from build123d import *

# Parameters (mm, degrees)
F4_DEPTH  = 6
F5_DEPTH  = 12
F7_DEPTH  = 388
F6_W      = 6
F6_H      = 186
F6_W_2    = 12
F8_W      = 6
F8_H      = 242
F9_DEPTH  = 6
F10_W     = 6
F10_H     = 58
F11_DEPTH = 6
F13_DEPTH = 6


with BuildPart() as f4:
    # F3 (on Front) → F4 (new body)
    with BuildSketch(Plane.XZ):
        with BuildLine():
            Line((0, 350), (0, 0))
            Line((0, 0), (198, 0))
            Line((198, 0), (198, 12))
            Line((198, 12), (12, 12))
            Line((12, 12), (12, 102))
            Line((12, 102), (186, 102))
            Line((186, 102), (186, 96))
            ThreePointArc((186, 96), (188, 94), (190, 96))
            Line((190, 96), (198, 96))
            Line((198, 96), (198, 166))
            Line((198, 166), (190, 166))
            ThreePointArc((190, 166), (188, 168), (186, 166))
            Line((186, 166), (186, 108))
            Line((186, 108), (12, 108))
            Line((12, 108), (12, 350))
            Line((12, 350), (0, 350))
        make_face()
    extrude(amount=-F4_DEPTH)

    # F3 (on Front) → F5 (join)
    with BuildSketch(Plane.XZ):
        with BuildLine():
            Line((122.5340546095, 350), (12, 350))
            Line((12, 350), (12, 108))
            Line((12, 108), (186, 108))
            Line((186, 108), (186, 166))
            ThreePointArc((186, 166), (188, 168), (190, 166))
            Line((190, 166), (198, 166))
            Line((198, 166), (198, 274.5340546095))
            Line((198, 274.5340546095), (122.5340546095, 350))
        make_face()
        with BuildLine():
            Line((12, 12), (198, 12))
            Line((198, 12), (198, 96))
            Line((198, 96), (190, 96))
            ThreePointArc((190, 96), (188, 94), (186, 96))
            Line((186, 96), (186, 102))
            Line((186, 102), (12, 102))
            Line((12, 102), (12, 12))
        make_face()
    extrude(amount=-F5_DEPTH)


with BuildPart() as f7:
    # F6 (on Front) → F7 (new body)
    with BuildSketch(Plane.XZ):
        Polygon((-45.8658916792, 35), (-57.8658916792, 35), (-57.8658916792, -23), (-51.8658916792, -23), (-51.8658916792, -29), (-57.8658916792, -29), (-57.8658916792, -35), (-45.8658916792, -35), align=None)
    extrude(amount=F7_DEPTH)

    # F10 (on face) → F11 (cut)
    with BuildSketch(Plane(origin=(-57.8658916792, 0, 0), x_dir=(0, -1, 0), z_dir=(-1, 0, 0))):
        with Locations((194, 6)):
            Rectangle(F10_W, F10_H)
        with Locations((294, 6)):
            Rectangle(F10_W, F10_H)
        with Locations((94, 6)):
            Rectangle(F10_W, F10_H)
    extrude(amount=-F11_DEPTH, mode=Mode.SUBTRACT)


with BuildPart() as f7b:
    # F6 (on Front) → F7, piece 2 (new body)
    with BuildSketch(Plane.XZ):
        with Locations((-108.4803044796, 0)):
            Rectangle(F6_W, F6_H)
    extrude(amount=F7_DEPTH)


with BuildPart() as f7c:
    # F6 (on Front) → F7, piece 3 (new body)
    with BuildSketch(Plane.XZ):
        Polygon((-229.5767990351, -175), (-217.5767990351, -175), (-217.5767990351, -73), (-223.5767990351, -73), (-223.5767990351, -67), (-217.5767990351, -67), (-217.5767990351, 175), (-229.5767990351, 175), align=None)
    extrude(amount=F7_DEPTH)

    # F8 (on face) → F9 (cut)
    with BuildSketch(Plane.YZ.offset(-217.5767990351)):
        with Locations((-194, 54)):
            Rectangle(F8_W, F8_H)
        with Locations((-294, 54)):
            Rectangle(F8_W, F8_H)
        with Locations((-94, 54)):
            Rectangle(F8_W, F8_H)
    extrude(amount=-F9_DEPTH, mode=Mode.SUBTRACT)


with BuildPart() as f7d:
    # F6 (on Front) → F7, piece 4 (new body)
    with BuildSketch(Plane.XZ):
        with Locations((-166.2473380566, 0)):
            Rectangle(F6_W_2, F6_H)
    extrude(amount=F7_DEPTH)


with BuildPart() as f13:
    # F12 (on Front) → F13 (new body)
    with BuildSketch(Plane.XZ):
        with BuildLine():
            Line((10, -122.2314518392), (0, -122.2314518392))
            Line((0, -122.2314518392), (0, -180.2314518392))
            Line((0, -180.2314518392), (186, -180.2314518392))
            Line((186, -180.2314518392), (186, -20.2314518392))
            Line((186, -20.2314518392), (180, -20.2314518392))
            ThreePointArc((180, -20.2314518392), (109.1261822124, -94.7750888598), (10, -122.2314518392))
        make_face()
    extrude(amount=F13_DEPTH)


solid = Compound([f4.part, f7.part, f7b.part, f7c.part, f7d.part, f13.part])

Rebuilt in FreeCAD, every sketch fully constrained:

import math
import FreeCAD as App
import Part
import Sketcher

V = App.Vector
Q = App.Units.Quantity

doc = App.newDocument("Part")
body = doc.addObject("PartDesign::Body", "Body")

# Sketch on XZ plane
sketch1 = body.newObject("Sketcher::SketchObject", "Sketch")
sketch1.AttachmentSupport = (doc.getObject("XZ_Plane"), [""])
sketch1.MapMode = "FlatFace"
sketch1.addGeometry([
    Part.LineSegment(V(0, 350, 0), V(0, 0, 0)),  # 0
    Part.LineSegment(V(0, 0, 0), V(198, 0, 0)),  # 1
    Part.LineSegment(V(198, 0, 0), V(198, 12, 0)),  # 2
    Part.LineSegment(V(198, 12, 0), V(12, 12, 0)),  # 3
    Part.LineSegment(V(12, 12, 0), V(12, 102, 0)),  # 4
    Part.LineSegment(V(12, 102, 0), V(186, 102, 0)),  # 5
    Part.LineSegment(V(186, 102, 0), V(186, 96, 0)),  # 6
    Part.ArcOfCircle(Part.Circle(V(188, 96, 0), V(0, 0, 1), 2), math.radians(180), math.radians(360)),  # 7
    Part.LineSegment(V(190, 96, 0), V(198, 96, 0)),  # 8
    Part.LineSegment(V(198, 96, 0), V(198, 166, 0)),  # 9
    Part.LineSegment(V(198, 166, 0), V(190, 166, 0)),  # 10
    Part.ArcOfCircle(Part.Circle(V(188, 166, 0), V(0, 0, 1), 2), math.radians(0), math.radians(180)),  # 11
    Part.LineSegment(V(186, 166, 0), V(186, 108, 0)),  # 12
    Part.LineSegment(V(186, 108, 0), V(12, 108, 0)),  # 13
    Part.LineSegment(V(12, 108, 0), V(12, 350, 0)),  # 14
    Part.LineSegment(V(12, 350, 0), V(0, 350, 0)),  # 15
], False)
sketch1.addConstraint([
    Sketcher.Constraint("Coincident", 0, 2, 1, 1),
    Sketcher.Constraint("Coincident", 1, 2, 2, 1),
    Sketcher.Constraint("Coincident", 2, 2, 3, 1),
    Sketcher.Constraint("Coincident", 3, 2, 4, 1),
    Sketcher.Constraint("Coincident", 4, 2, 5, 1),
    Sketcher.Constraint("Coincident", 5, 2, 6, 1),
    Sketcher.Constraint("Tangent", 6, 2, 7, 1),
    Sketcher.Constraint("Coincident", 7, 2, 8, 1),
    Sketcher.Constraint("Coincident", 8, 2, 9, 1),
    Sketcher.Constraint("Coincident", 9, 2, 10, 1),
    Sketcher.Constraint("Coincident", 10, 2, 11, 1),
    Sketcher.Constraint("Tangent", 11, 2, 12, 1),
    Sketcher.Constraint("Coincident", 12, 2, 13, 1),
    Sketcher.Constraint("Coincident", 13, 2, 14, 1),
    Sketcher.Constraint("Coincident", 14, 2, 15, 1),
    Sketcher.Constraint("Coincident", 15, 2, 0, 1),
    Sketcher.Constraint("Vertical", 0),
    Sketcher.Constraint("Horizontal", 1),
    Sketcher.Constraint("Vertical", 2),
    Sketcher.Constraint("Horizontal", 3),
    Sketcher.Constraint("Vertical", 4),
    Sketcher.Constraint("Horizontal", 5),
    Sketcher.Constraint("Vertical", 6),
    Sketcher.Constraint("Horizontal", 8),
    Sketcher.Constraint("Vertical", 9),
    Sketcher.Constraint("Horizontal", 10),
    Sketcher.Constraint("Vertical", 12),
    Sketcher.Constraint("Horizontal", 13),
    Sketcher.Constraint("Vertical", 14),
    Sketcher.Constraint("Horizontal", 15),
    Sketcher.Constraint("Coincident", 0, 2, -1, 1),
    Sketcher.Constraint("Equal", 7, 11),
    Sketcher.Constraint("Horizontal", 6, 2, 7, 2),
    Sketcher.Constraint("Horizontal", 11, 3, 9, 2),
    Sketcher.Constraint("Vertical", 7, 3, 11, 3),
    Sketcher.Constraint("Vertical", 2, 2, 8, 2),
    Sketcher.Constraint("Vertical", 4, 2, 13, 2),
    Sketcher.Constraint("Equal", 15, 2),
    Sketcher.Constraint("Radius", 7, Q("2 mm")),
    Sketcher.Constraint("DistanceX", 1, 1, 1, 2, Q("198 mm")),
    Sketcher.Constraint("DistanceX", 3, 2, 3, 1, Q("186 mm")),
    Sketcher.Constraint("DistanceX", 5, 1, 5, 2, Q("174 mm")),
    Sketcher.Constraint("DistanceY", 0, 2, 0, 1, Q("350 mm")),
    Sketcher.Constraint("DistanceY", 4, 1, 4, 2, Q("90 mm")),
    Sketcher.Constraint("DistanceY", 6, 2, 6, 1, Q("6 mm")),
    Sketcher.Constraint("DistanceY", 9, 1, 9, 2, Q("70 mm")),
    Sketcher.Constraint("DistanceY", 12, 2, 12, 1, Q("58 mm")),
])
pad1 = body.newObject("PartDesign::Pad", "Pad")
pad1.Profile = sketch1
pad1.Length = 6
pad1.Reversed = True

# Sketch on XZ plane
sketch2 = body.newObject("Sketcher::SketchObject", "Sketch001")
sketch2.AttachmentSupport = (doc.getObject("XZ_Plane"), [""])
sketch2.MapMode = "FlatFace"
sketch2.addGeometry([
    Part.LineSegment(V(122.5, 350, 0), V(12, 350, 0)),  # 0
    Part.LineSegment(V(12, 350, 0), V(12, 108, 0)),  # 1
    Part.LineSegment(V(12, 108, 0), V(186, 108, 0)),  # 2
    Part.LineSegment(V(186, 108, 0), V(186, 166, 0)),  # 3
    Part.ArcOfCircle(Part.Circle(V(188, 166, 0), V(0, 0, 1), 2), math.radians(0), math.radians(180)),  # 4
    Part.LineSegment(V(190, 166, 0), V(198, 166, 0)),  # 5
    Part.LineSegment(V(198, 166, 0), V(198, 274.5, 0)),  # 6
    Part.LineSegment(V(198, 274.5, 0), V(122.5, 350, 0)),  # 7
    Part.LineSegment(V(12, 12, 0), V(198, 12, 0)),  # 8
    Part.LineSegment(V(198, 12, 0), V(198, 96, 0)),  # 9
    Part.LineSegment(V(198, 96, 0), V(190, 96, 0)),  # 10
    Part.ArcOfCircle(Part.Circle(V(188, 96, 0), V(0, 0, 1), 2), math.radians(180), math.radians(360)),  # 11
    Part.LineSegment(V(186, 96, 0), V(186, 102, 0)),  # 12
    Part.LineSegment(V(186, 102, 0), V(12, 102, 0)),  # 13
    Part.LineSegment(V(12, 102, 0), V(12, 12, 0)),  # 14
], False)
sketch2.addConstraint([
    Sketcher.Constraint("Coincident", 0, 2, 1, 1),
    Sketcher.Constraint("Coincident", 1, 2, 2, 1),
    Sketcher.Constraint("Coincident", 2, 2, 3, 1),
    Sketcher.Constraint("Tangent", 3, 2, 4, 2),
    Sketcher.Constraint("Coincident", 4, 1, 5, 1),
    Sketcher.Constraint("Coincident", 5, 2, 6, 1),
    Sketcher.Constraint("Coincident", 6, 2, 7, 1),
    Sketcher.Constraint("Coincident", 7, 2, 0, 1),
    Sketcher.Constraint("Coincident", 8, 2, 9, 1),
    Sketcher.Constraint("Coincident", 9, 2, 10, 1),
    Sketcher.Constraint("Coincident", 10, 2, 11, 2),
    Sketcher.Constraint("Tangent", 11, 1, 12, 1),
    Sketcher.Constraint("Coincident", 12, 2, 13, 1),
    Sketcher.Constraint("Coincident", 13, 2, 14, 1),
    Sketcher.Constraint("Coincident", 14, 2, 8, 1),
    Sketcher.Constraint("Horizontal", 0),
    Sketcher.Constraint("Vertical", 1),
    Sketcher.Constraint("Horizontal", 2),
    Sketcher.Constraint("Vertical", 3),
    Sketcher.Constraint("Horizontal", 5),
    Sketcher.Constraint("Vertical", 6),
    Sketcher.Constraint("Horizontal", 8),
    Sketcher.Constraint("Vertical", 9),
    Sketcher.Constraint("Horizontal", 10),
    Sketcher.Constraint("Vertical", 12),
    Sketcher.Constraint("Horizontal", 13),
    Sketcher.Constraint("Vertical", 14),
    Sketcher.Constraint("Equal", 4, 11),
    Sketcher.Constraint("Horizontal", 3, 2, 4, 1),
    Sketcher.Constraint("Horizontal", 11, 3, 9, 2),
    Sketcher.Constraint("Vertical", 4, 3, 11, 3),
    Sketcher.Constraint("Vertical", 6, 2, 8, 2),
    Sketcher.Constraint("Vertical", 1, 2, 13, 2),
    Sketcher.Constraint("Radius", 4, Q("2 mm")),
    Sketcher.Constraint("DistanceX", 2, 1, 2, 2, Q("174 mm")),
    Sketcher.Constraint("DistanceX", 5, 1, 5, 2, Q("8 mm")),
    Sketcher.Constraint("DistanceY", 1, 2, 1, 1, Q("242 mm")),
    Sketcher.Constraint("DistanceY", 3, 1, 3, 2, Q("58 mm")),
    Sketcher.Constraint("DistanceY", 9, 1, 9, 2, Q("84 mm")),
    Sketcher.Constraint("DistanceY", 12, 1, 12, 2, Q("6 mm")),
    Sketcher.Constraint("Angle", 7, Q("135 deg")),
    Sketcher.Constraint("DistanceX", -1, 1, 4, 3, Q("188 mm")),
    Sketcher.Constraint("DistanceY", -1, 1, 4, 3, Q("166 mm")),
    Sketcher.Constraint("DistanceY", -1, 1, 11, 3, Q("96 mm")),
    Sketcher.Constraint("DistanceX", 0, 2, 0, 1, Q("110.534055 mm")),
])
pad2 = body.newObject("PartDesign::Pad", "Pad001")
pad2.Profile = sketch2
pad2.Length = 12
pad2.Reversed = True
body2 = doc.addObject("PartDesign::Body", "Body001")

# Sketch on XZ plane
sketch3 = body2.newObject("Sketcher::SketchObject", "Sketch002")
sketch3.AttachmentSupport = (doc.getObject("XZ_Plane001"), [""])
sketch3.MapMode = "FlatFace"
sketch3.addGeometry([
    Part.LineSegment(V(-46, 35, 0), V(-58, 35, 0)),  # 0
    Part.LineSegment(V(-58, 35, 0), V(-58, -23, 0)),  # 1
    Part.LineSegment(V(-58, -23, 0), V(-52, -23, 0)),  # 2
    Part.LineSegment(V(-52, -23, 0), V(-52, -29, 0)),  # 3
    Part.LineSegment(V(-52, -29, 0), V(-58, -29, 0)),  # 4
    Part.LineSegment(V(-58, -29, 0), V(-58, -35, 0)),  # 5
    Part.LineSegment(V(-58, -35, 0), V(-46, -35, 0)),  # 6
    Part.LineSegment(V(-46, -35, 0), V(-46, 35, 0)),  # 7
], False)
sketch3.addConstraint([
    Sketcher.Constraint("Coincident", 0, 2, 1, 1),
    Sketcher.Constraint("Coincident", 1, 2, 2, 1),
    Sketcher.Constraint("Coincident", 2, 2, 3, 1),
    Sketcher.Constraint("Coincident", 3, 2, 4, 1),
    Sketcher.Constraint("Coincident", 4, 2, 5, 1),
    Sketcher.Constraint("Coincident", 5, 2, 6, 1),
    Sketcher.Constraint("Coincident", 6, 2, 7, 1),
    Sketcher.Constraint("Coincident", 7, 2, 0, 1),
    Sketcher.Constraint("Horizontal", 0),
    Sketcher.Constraint("Vertical", 1),
    Sketcher.Constraint("Horizontal", 2),
    Sketcher.Constraint("Vertical", 3),
    Sketcher.Constraint("Horizontal", 4),
    Sketcher.Constraint("Vertical", 5),
    Sketcher.Constraint("Horizontal", 6),
    Sketcher.Constraint("Vertical", 7),
    Sketcher.Constraint("Symmetric", 0, 2, 5, 2, -1),
    Sketcher.Constraint("Equal", 4, 3),
    Sketcher.Constraint("Equal", 3, 5),
    Sketcher.Constraint("DistanceX", 0, 2, 0, 1, Q("12 mm")),
    Sketcher.Constraint("DistanceX", 2, 1, 2, 2, Q("6 mm")),
    Sketcher.Constraint("DistanceY", 1, 2, 1, 1, Q("58 mm")),
    Sketcher.Constraint("DistanceX", 0, 2, -1, 1, Q("57.865892 mm")),
])
pad3 = body2.newObject("PartDesign::Pad", "Pad002")
pad3.Profile = sketch3
pad3.Length = 388

# Sketch on YZ plane
sketch4 = body2.newObject("Sketcher::SketchObject", "Sketch003")
sketch4.AttachmentSupport = (doc.getObject("YZ_Plane001"), [""])
sketch4.MapMode = "FlatFace"
sketch4.AttachmentOffset = App.Placement(V(0, 0, -57.865892), App.Rotation())
sketch4.addGeometry([
    Part.LineSegment(V(-191, 35, 0), V(-191, -23, 0)),  # 0
    Part.LineSegment(V(-191, -23, 0), V(-197, -23, 0)),  # 1
    Part.LineSegment(V(-197, -23, 0), V(-197, 35, 0)),  # 2
    Part.LineSegment(V(-197, 35, 0), V(-191, 35, 0)),  # 3
    Part.LineSegment(V(-291, 35, 0), V(-291, -23, 0)),  # 4
    Part.LineSegment(V(-291, -23, 0), V(-297, -23, 0)),  # 5
    Part.LineSegment(V(-297, -23, 0), V(-297, 35, 0)),  # 6
    Part.LineSegment(V(-297, 35, 0), V(-291, 35, 0)),  # 7
    Part.LineSegment(V(-91, 35, 0), V(-91, -23, 0)),  # 8
    Part.LineSegment(V(-91, -23, 0), V(-97, -23, 0)),  # 9
    Part.LineSegment(V(-97, -23, 0), V(-97, 35, 0)),  # 10
    Part.LineSegment(V(-97, 35, 0), V(-91, 35, 0)),  # 11
], False)
sketch4.addConstraint([
    Sketcher.Constraint("Coincident", 0, 2, 1, 1),
    Sketcher.Constraint("Coincident", 1, 2, 2, 1),
    Sketcher.Constraint("Coincident", 2, 2, 3, 1),
    Sketcher.Constraint("Coincident", 3, 2, 0, 1),
    Sketcher.Constraint("Coincident", 4, 2, 5, 1),
    Sketcher.Constraint("Coincident", 5, 2, 6, 1),
    Sketcher.Constraint("Coincident", 6, 2, 7, 1),
    Sketcher.Constraint("Coincident", 7, 2, 4, 1),
    Sketcher.Constraint("Coincident", 8, 2, 9, 1),
    Sketcher.Constraint("Coincident", 9, 2, 10, 1),
    Sketcher.Constraint("Coincident", 10, 2, 11, 1),
    Sketcher.Constraint("Coincident", 11, 2, 8, 1),
    Sketcher.Constraint("Vertical", 0),
    Sketcher.Constraint("Horizontal", 1),
    Sketcher.Constraint("Vertical", 2),
    Sketcher.Constraint("Horizontal", 3),
    Sketcher.Constraint("Vertical", 4),
    Sketcher.Constraint("Horizontal", 5),
    Sketcher.Constraint("Vertical", 6),
    Sketcher.Constraint("Horizontal", 7),
    Sketcher.Constraint("Vertical", 8),
    Sketcher.Constraint("Horizontal", 9),
    Sketcher.Constraint("Vertical", 10),
    Sketcher.Constraint("Horizontal", 11),
    Sketcher.Constraint("Horizontal", 1, 2, 4, 2),
    Sketcher.Constraint("Horizontal", 3, 2, 6, 2),
    Sketcher.Constraint("Horizontal", 5, 2, 8, 2),
    Sketcher.Constraint("Horizontal", 7, 2, 10, 2),
    Sketcher.Constraint("Equal", 3, 5),
    Sketcher.Constraint("Equal", 7, 9),
    Sketcher.Constraint("DistanceX", 1, 2, 1, 1, Q("6 mm")),
    Sketcher.Constraint("DistanceY", 0, 2, 0, 1, Q("58 mm")),
    Sketcher.Constraint("DistanceX", 0, 2, -1, 1, Q("191 mm")),
    Sketcher.Constraint("DistanceY", 0, 2, -1, 1, Q("23 mm")),
    Sketcher.Constraint("DistanceX", 4, 2, -1, 1, Q("291 mm")),
    Sketcher.Constraint("DistanceX", 8, 2, -1, 1, Q("91 mm")),
])
pocket1 = body2.newObject("PartDesign::Pocket", "Pocket")
pocket1.Profile = sketch4
pocket1.Length = 6
pocket1.Reversed = True
body3 = doc.addObject("PartDesign::Body", "Body002")

# Sketch on XZ plane
sketch5 = body3.newObject("Sketcher::SketchObject", "Sketch004")
sketch5.AttachmentSupport = (doc.getObject("XZ_Plane002"), [""])
sketch5.MapMode = "FlatFace"
sketch5.addGeometry([
    Part.LineSegment(V(-111, 93, 0), V(-111, -93, 0)),
    Part.LineSegment(V(-111, -93, 0), V(-105, -93, 0)),
    Part.LineSegment(V(-105, -93, 0), V(-105, 93, 0)),
    Part.LineSegment(V(-105, 93, 0), V(-111, 93, 0)),
], False)
sketch5.addConstraint([
    Sketcher.Constraint("Coincident", 0, 2, 1, 1),
    Sketcher.Constraint("Coincident", 1, 2, 2, 1),
    Sketcher.Constraint("Coincident", 2, 2, 3, 1),
    Sketcher.Constraint("Coincident", 3, 2, 0, 1),
    Sketcher.Constraint("Vertical", 0),
    Sketcher.Constraint("Horizontal", 1),
    Sketcher.Constraint("Vertical", 2),
    Sketcher.Constraint("Horizontal", 3),
    Sketcher.Constraint("DistanceX", 1, 1, 1, 2, Q("6 mm")),
    Sketcher.Constraint("DistanceY", 0, 2, 0, 1, Q("186 mm")),
    Sketcher.Constraint("DistanceY", 0, 2, -1, 1, Q("93 mm")),
    Sketcher.Constraint("DistanceX", 0, 2, -1, 1, Q("111.480304 mm")),
])
pad4 = body3.newObject("PartDesign::Pad", "Pad003")
pad4.Profile = sketch5
pad4.Length = 388
body4 = doc.addObject("PartDesign::Body", "Body003")

# Sketch on XZ plane
sketch6 = body4.newObject("Sketcher::SketchObject", "Sketch005")
sketch6.AttachmentSupport = (doc.getObject("XZ_Plane003"), [""])
sketch6.MapMode = "FlatFace"
sketch6.addGeometry([
    Part.LineSegment(V(-230, -175, 0), V(-218, -175, 0)),  # 0
    Part.LineSegment(V(-218, -175, 0), V(-218, -73, 0)),  # 1
    Part.LineSegment(V(-218, -73, 0), V(-224, -73, 0)),  # 2
    Part.LineSegment(V(-224, -73, 0), V(-224, -67, 0)),  # 3
    Part.LineSegment(V(-224, -67, 0), V(-218, -67, 0)),  # 4
    Part.LineSegment(V(-218, -67, 0), V(-218, 175, 0)),  # 5
    Part.LineSegment(V(-218, 175, 0), V(-230, 175, 0)),  # 6
    Part.LineSegment(V(-230, 175, 0), V(-230, -175, 0)),  # 7
], False)
sketch6.addConstraint([
    Sketcher.Constraint("Coincident", 0, 2, 1, 1),
    Sketcher.Constraint("Coincident", 1, 2, 2, 1),
    Sketcher.Constraint("Coincident", 2, 2, 3, 1),
    Sketcher.Constraint("Coincident", 3, 2, 4, 1),
    Sketcher.Constraint("Coincident", 4, 2, 5, 1),
    Sketcher.Constraint("Coincident", 5, 2, 6, 1),
    Sketcher.Constraint("Coincident", 6, 2, 7, 1),
    Sketcher.Constraint("Coincident", 7, 2, 0, 1),
    Sketcher.Constraint("Horizontal", 0),
    Sketcher.Constraint("Vertical", 1),
    Sketcher.Constraint("Horizontal", 2),
    Sketcher.Constraint("Vertical", 3),
    Sketcher.Constraint("Horizontal", 4),
    Sketcher.Constraint("Vertical", 5),
    Sketcher.Constraint("Horizontal", 6),
    Sketcher.Constraint("Vertical", 7),
    Sketcher.Constraint("Symmetric", 0, 2, 5, 2, -1),
    Sketcher.Constraint("Equal", 4, 3),
    Sketcher.Constraint("DistanceX", 0, 1, 0, 2, Q("12 mm")),
    Sketcher.Constraint("DistanceX", 2, 2, 2, 1, Q("6 mm")),
    Sketcher.Constraint("DistanceY", 1, 1, 1, 2, Q("102 mm")),
    Sketcher.Constraint("DistanceY", 5, 1, 5, 2, Q("242 mm")),
    Sketcher.Constraint("DistanceX", 0, 2, -1, 1, Q("217.576799 mm")),
])
pad5 = body4.newObject("PartDesign::Pad", "Pad004")
pad5.Profile = sketch6
pad5.Length = 388

# Sketch on YZ plane
sketch7 = body4.newObject("Sketcher::SketchObject", "Sketch006")
sketch7.AttachmentSupport = (doc.getObject("YZ_Plane003"), [""])
sketch7.MapMode = "FlatFace"
sketch7.AttachmentOffset = App.Placement(V(0, 0, -217.576799), App.Rotation())
sketch7.addGeometry([
    Part.LineSegment(V(-197, 175, 0), V(-197, -67, 0)),  # 0
    Part.LineSegment(V(-197, -67, 0), V(-191, -67, 0)),  # 1
    Part.LineSegment(V(-191, -67, 0), V(-191, 175, 0)),  # 2
    Part.LineSegment(V(-191, 175, 0), V(-197, 175, 0)),  # 3
    Part.LineSegment(V(-297, 175, 0), V(-297, -67, 0)),  # 4
    Part.LineSegment(V(-297, -67, 0), V(-291, -67, 0)),  # 5
    Part.LineSegment(V(-291, -67, 0), V(-291, 175, 0)),  # 6
    Part.LineSegment(V(-291, 175, 0), V(-297, 175, 0)),  # 7
    Part.LineSegment(V(-97, 175, 0), V(-97, -67, 0)),  # 8
    Part.LineSegment(V(-97, -67, 0), V(-91, -67, 0)),  # 9
    Part.LineSegment(V(-91, -67, 0), V(-91, 175, 0)),  # 10
    Part.LineSegment(V(-91, 175, 0), V(-97, 175, 0)),  # 11
], False)
sketch7.addConstraint([
    Sketcher.Constraint("Coincident", 0, 2, 1, 1),
    Sketcher.Constraint("Coincident", 1, 2, 2, 1),
    Sketcher.Constraint("Coincident", 2, 2, 3, 1),
    Sketcher.Constraint("Coincident", 3, 2, 0, 1),
    Sketcher.Constraint("Coincident", 4, 2, 5, 1),
    Sketcher.Constraint("Coincident", 5, 2, 6, 1),
    Sketcher.Constraint("Coincident", 6, 2, 7, 1),
    Sketcher.Constraint("Coincident", 7, 2, 4, 1),
    Sketcher.Constraint("Coincident", 8, 2, 9, 1),
    Sketcher.Constraint("Coincident", 9, 2, 10, 1),
    Sketcher.Constraint("Coincident", 10, 2, 11, 1),
    Sketcher.Constraint("Coincident", 11, 2, 8, 1),
    Sketcher.Constraint("Vertical", 0),
    Sketcher.Constraint("Horizontal", 1),
    Sketcher.Constraint("Vertical", 2),
    Sketcher.Constraint("Horizontal", 3),
    Sketcher.Constraint("Vertical", 4),
    Sketcher.Constraint("Horizontal", 5),
    Sketcher.Constraint("Vertical", 6),
    Sketcher.Constraint("Horizontal", 7),
    Sketcher.Constraint("Vertical", 8),
    Sketcher.Constraint("Horizontal", 9),
    Sketcher.Constraint("Vertical", 10),
    Sketcher.Constraint("Horizontal", 11),
    Sketcher.Constraint("Horizontal", 1, 2, 4, 2),
    Sketcher.Constraint("Horizontal", 3, 2, 6, 2),
    Sketcher.Constraint("Horizontal", 5, 2, 8, 2),
    Sketcher.Constraint("Horizontal", 7, 2, 10, 2),
    Sketcher.Constraint("Equal", 3, 5),
    Sketcher.Constraint("Equal", 7, 9),
    Sketcher.Constraint("DistanceX", 1, 1, 1, 2, Q("6 mm")),
    Sketcher.Constraint("DistanceY", 0, 2, 0, 1, Q("242 mm")),
    Sketcher.Constraint("DistanceX", 0, 2, -1, 1, Q("197 mm")),
    Sketcher.Constraint("DistanceY", 0, 2, -1, 1, Q("67 mm")),
    Sketcher.Constraint("DistanceX", 4, 2, -1, 1, Q("297 mm")),
    Sketcher.Constraint("DistanceX", 8, 2, -1, 1, Q("97 mm")),
])
pocket2 = body4.newObject("PartDesign::Pocket", "Pocket001")
pocket2.Profile = sketch7
pocket2.Length = 6
body5 = doc.addObject("PartDesign::Body", "Body004")

# Sketch on XZ plane
sketch8 = body5.newObject("Sketcher::SketchObject", "Sketch007")
sketch8.AttachmentSupport = (doc.getObject("XZ_Plane004"), [""])
sketch8.MapMode = "FlatFace"
sketch8.addGeometry([
    Part.LineSegment(V(-172, 93, 0), V(-172, -93, 0)),
    Part.LineSegment(V(-172, -93, 0), V(-160, -93, 0)),
    Part.LineSegment(V(-160, -93, 0), V(-160, 93, 0)),
    Part.LineSegment(V(-160, 93, 0), V(-172, 93, 0)),
], False)
sketch8.addConstraint([
    Sketcher.Constraint("Coincident", 0, 2, 1, 1),
    Sketcher.Constraint("Coincident", 1, 2, 2, 1),
    Sketcher.Constraint("Coincident", 2, 2, 3, 1),
    Sketcher.Constraint("Coincident", 3, 2, 0, 1),
    Sketcher.Constraint("Vertical", 0),
    Sketcher.Constraint("Horizontal", 1),
    Sketcher.Constraint("Vertical", 2),
    Sketcher.Constraint("Horizontal", 3),
    Sketcher.Constraint("DistanceX", 1, 1, 1, 2, Q("12 mm")),
    Sketcher.Constraint("DistanceY", 0, 2, 0, 1, Q("186 mm")),
    Sketcher.Constraint("DistanceY", 0, 2, -1, 1, Q("93 mm")),
    Sketcher.Constraint("DistanceX", 0, 2, -1, 1, Q("172.247338 mm")),
])
pad6 = body5.newObject("PartDesign::Pad", "Pad005")
pad6.Profile = sketch8
pad6.Length = 388
body6 = doc.addObject("PartDesign::Body", "Body005")

# Sketch on XZ plane
sketch9 = body6.newObject("Sketcher::SketchObject", "Sketch008")
sketch9.AttachmentSupport = (doc.getObject("XZ_Plane005"), [""])
sketch9.MapMode = "FlatFace"
sketch9.addGeometry([
    Part.LineSegment(V(10, -122, 0), V(0, -122, 0)),  # 0
    Part.LineSegment(V(0, -122, 0), V(0, -180, 0)),  # 1
    Part.LineSegment(V(0, -180, 0), V(186, -180, 0)),  # 2
    Part.LineSegment(V(186, -180, 0), V(186, -20, 0)),  # 3
    Part.LineSegment(V(186, -20, 0), V(180, -20, 0)),  # 4
    Part.ArcOfCircle(Part.Circle(V(10, 70, 0), V(0, 0, 1), 193), math.radians(-90), math.radians(-28)),  # 5
], False)
sketch9.addConstraint([
    Sketcher.Constraint("Coincident", 0, 2, 1, 1),
    Sketcher.Constraint("Coincident", 1, 2, 2, 1),
    Sketcher.Constraint("Coincident", 2, 2, 3, 1),
    Sketcher.Constraint("Coincident", 3, 2, 4, 1),
    Sketcher.Constraint("Coincident", 4, 2, 5, 2),
    Sketcher.Constraint("Tangent", 5, 1, 0, 1),
    Sketcher.Constraint("Horizontal", 0),
    Sketcher.Constraint("Vertical", 1),
    Sketcher.Constraint("Horizontal", 2),
    Sketcher.Constraint("Vertical", 3),
    Sketcher.Constraint("Horizontal", 4),
    Sketcher.Constraint("PointOnObject", 0, 2, -2),
    Sketcher.Constraint("DistanceX", 0, 2, 0, 1, Q("10 mm")),
    Sketcher.Constraint("DistanceX", 2, 1, 2, 2, Q("186 mm")),
    Sketcher.Constraint("DistanceX", 4, 2, 4, 1, Q("6 mm")),
    Sketcher.Constraint("DistanceY", 1, 2, 1, 1, Q("58 mm")),
    Sketcher.Constraint("DistanceY", 3, 1, 3, 2, Q("160 mm")),
    Sketcher.Constraint("DistanceY", 0, 2, -1, 1, Q("122.231452 mm")),
])
pad7 = body6.newObject("PartDesign::Pad", "Pad006")
pad7.Profile = sketch9
pad7.Length = 6

doc.recompute()
